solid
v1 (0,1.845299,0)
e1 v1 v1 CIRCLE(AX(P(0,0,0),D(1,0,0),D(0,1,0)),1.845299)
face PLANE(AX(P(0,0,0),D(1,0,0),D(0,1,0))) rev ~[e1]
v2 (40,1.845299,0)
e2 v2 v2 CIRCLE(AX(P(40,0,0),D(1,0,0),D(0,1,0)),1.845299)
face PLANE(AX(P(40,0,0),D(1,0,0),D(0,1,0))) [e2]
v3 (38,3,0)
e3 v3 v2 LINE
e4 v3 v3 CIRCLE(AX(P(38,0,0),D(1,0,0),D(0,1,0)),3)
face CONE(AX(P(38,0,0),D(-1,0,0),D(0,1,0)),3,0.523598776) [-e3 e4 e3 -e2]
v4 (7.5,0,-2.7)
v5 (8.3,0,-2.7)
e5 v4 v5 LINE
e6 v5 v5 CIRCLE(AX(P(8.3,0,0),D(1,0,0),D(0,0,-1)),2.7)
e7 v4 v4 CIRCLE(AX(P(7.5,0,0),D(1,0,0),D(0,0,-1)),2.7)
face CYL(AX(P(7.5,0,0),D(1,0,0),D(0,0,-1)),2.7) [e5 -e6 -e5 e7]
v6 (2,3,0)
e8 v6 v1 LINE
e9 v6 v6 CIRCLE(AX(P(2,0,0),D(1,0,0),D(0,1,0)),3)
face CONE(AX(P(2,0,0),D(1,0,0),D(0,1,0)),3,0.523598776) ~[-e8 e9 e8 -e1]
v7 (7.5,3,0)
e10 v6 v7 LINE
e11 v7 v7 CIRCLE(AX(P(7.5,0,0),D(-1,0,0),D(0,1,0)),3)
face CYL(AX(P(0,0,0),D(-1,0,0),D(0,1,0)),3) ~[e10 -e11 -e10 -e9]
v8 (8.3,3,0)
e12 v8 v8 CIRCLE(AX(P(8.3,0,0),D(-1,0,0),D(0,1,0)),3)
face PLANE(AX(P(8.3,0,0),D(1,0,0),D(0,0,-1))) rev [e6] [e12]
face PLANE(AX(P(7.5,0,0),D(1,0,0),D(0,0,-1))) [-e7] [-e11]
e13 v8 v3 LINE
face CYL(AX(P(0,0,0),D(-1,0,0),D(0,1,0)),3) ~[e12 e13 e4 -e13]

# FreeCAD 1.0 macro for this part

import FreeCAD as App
import Part
import Sketcher

V = App.Vector


def edges_at(feature, points):
    """Names of the edges that pass closest to the given points."""
    edges = feature.Shape.Edges
    near = lambda p: min(range(len(edges)), key=lambda i: edges[i].distToShape(Part.Vertex(*p))[0])
    return sorted({f"Edge{near(p) + 1}" for p in points})

doc = App.newDocument("Part")
params = doc.addObject("Spreadsheet::Sheet", "Params")
for row, (alias, value) in enumerate([
    ("sketch1_diameter", "6 mm"),
    ("pad1_length", "40 mm"),
    ("chamfer_size", "2 mm"),
    ("chamfer2_size", "2 mm"),
    ("sketch2_width", "0.8 mm"),
    ("groove_angle", "360 deg"),
], start=1):
    params.set(f"A{row}", alias)
    params.set(f"B{row}", "=" + value)
    params.setAlias(f"B{row}", alias)

body = doc.addObject("PartDesign::Body", "Body")

# Sketch on YZ plane
sketch1 = body.newObject("Sketcher::SketchObject", "Sketch")
sketch1.AttachmentSupport = (doc.getObject("YZ_Plane"), [""])
sketch1.MapMode = "FlatFace"
sketch1.addGeometry(Part.Circle(V(0, 0, 0), V(0, 0, 1), 3), False)
sketch1.addConstraint(Sketcher.Constraint("Coincident", 0, 3, -1, 1))
sketch1.addConstraint(Sketcher.Constraint("Diameter", 0, 6.0))
sketch1.setExpression("Constraints[1]", "Params.sketch1_diameter")
pad1 = body.newObject("PartDesign::Pad", "Pad")
pad1.Profile = sketch1
pad1.setExpression("Length", "Params.pad1_length")
doc.recompute()

chamfer = body.newObject("PartDesign::Chamfer", "Chamfer")
chamfer.Base = (pad1, edges_at(pad1, [(0, -3, 0)]))
chamfer.ChamferType = "Distance and Angle"
chamfer.setExpression("Size", "Params.chamfer_size")
chamfer.Angle = 30
doc.recompute()

chamfer2 = body.newObject("PartDesign::Chamfer", "Chamfer001")
chamfer2.Base = (chamfer, edges_at(chamfer, [(40, -3, 0)]))
chamfer2.ChamferType = "Distance and Angle"
chamfer2.setExpression("Size", "Params.chamfer2_size")
chamfer2.Angle = 30

# Sketch on XZ plane
sketch2 = body.newObject("Sketcher::SketchObject", "Sketch001")
sketch2.AttachmentSupport = (doc.getObject("XZ_Plane"), [""])
sketch2.MapMode = "FlatFace"
sketch2.addGeometry(Part.LineSegment(V(7.5, -7, 0), V(7.5, -2.7, 0)), False)
sketch2.addGeometry(Part.LineSegment(V(7.5, -2.7, 0), V(8.3, -2.7, 0)), False)
sketch2.addGeometry(Part.LineSegment(V(8.3, -2.7, 0), V(8.3, -7, 0)), False)
sketch2.addGeometry(Part.LineSegment(V(8.3, -7, 0), V(7.5, -7, 0)), False)
sketch2.addConstraint(Sketcher.Constraint("Coincident", 0, 2, 1, 1))
sketch2.addConstraint(Sketcher.Constraint("Coincident", 1, 2, 2, 1))
sketch2.addConstraint(Sketcher.Constraint("Coincident", 2, 2, 3, 1))
sketch2.addConstraint(Sketcher.Constraint("Coincident", 3, 2, 0, 1))
sketch2.addConstraint(Sketcher.Constraint("Vertical", 0))
sketch2.addConstraint(Sketcher.Constraint("Horizontal", 1))
sketch2.addConstraint(Sketcher.Constraint("Vertical", 2))
sketch2.addConstraint(Sketcher.Constraint("Horizontal", 3))
sketch2.addConstraint(Sketcher.Constraint("DistanceX", 1, 1, 1, 2, 0.8))
sketch2.addConstraint(Sketcher.Constraint("DistanceY", 2, 2, -1, 1, 7.0))
sketch2.addConstraint(Sketcher.Constraint("DistanceX", -1, 1, 0, 2, 7.5))
sketch2.addConstraint(Sketcher.Constraint("DistanceY", 0, 2, -1, 1, 2.7))
sketch2.setExpression("Constraints[8]", "Params.sketch2_width")
groove = body.newObject("PartDesign::Groove", "Groove")
groove.Profile = sketch2
groove.ReferenceAxis = (sketch2, ["H_Axis"])
groove.setExpression("Angle", "Params.groove_angle")

doc.recompute()
